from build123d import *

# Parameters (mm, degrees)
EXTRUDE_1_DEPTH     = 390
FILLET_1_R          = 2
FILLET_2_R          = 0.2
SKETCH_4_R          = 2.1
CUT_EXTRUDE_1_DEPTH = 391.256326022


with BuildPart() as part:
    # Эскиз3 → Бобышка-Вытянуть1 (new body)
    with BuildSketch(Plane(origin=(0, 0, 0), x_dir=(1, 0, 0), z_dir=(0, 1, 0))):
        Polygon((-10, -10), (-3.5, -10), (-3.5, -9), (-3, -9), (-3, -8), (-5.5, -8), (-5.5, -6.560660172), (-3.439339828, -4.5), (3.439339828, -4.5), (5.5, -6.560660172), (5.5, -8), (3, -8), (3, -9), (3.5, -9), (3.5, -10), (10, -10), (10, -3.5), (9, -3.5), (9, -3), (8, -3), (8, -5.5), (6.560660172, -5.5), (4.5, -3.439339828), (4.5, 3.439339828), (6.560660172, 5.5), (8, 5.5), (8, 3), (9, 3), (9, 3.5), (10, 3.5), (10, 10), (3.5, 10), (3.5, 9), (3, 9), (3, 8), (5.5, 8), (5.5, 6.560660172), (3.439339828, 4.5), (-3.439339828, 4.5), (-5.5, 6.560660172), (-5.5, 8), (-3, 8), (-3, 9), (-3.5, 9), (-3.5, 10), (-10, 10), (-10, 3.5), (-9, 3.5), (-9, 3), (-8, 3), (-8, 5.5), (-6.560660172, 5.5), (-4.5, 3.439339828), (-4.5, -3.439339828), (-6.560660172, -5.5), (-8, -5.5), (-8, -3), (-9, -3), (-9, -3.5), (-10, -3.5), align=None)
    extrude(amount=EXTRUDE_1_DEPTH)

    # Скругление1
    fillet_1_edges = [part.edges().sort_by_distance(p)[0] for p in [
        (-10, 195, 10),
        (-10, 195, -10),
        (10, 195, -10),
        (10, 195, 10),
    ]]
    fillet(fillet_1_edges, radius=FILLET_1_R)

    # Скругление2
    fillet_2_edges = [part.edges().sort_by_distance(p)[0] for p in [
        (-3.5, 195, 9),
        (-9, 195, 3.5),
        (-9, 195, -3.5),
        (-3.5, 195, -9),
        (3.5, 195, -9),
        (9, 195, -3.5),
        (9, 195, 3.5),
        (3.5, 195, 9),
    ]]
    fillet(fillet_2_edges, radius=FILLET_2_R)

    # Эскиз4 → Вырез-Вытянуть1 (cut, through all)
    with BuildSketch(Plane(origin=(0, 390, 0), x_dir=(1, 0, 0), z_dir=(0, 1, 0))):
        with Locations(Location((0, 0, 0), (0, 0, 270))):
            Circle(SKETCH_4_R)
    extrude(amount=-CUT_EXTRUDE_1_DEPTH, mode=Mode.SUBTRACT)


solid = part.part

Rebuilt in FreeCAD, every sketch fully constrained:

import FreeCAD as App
import Part
import Sketcher

V = App.Vector
Q = App.Units.Quantity


def edges_at(feature, points):
    """Names of the edges that pass closest to the given points."""
    edges = feature.Shape.Edges
    near = lambda p: min(range(len(edges)), key=lambda i: edges[i].distToShape(Part.Vertex(*p))[0])
    return sorted({f"Edge{near(p) + 1}" for p in points})

doc = App.newDocument("Part")
body = doc.addObject("PartDesign::Body", "Body")

sketch1 = doc.addObject("Sketcher::SketchObject", "Sketch")
body.addObject(sketch1)
sketch1.AttachmentSupport = (doc.XZ_Plane, [""])
sketch1.MapMode = "FlatFace"
sketch1.addGeometry([
    Part.LineSegment(V(-10, 10, 0), V(-3.5, 10, 0)),
    Part.LineSegment(V(-3.5, 10, 0), V(-3.5, 9, 0)),
    Part.LineSegment(V(-3.5, 9, 0), V(-3, 9, 0)),
    Part.LineSegment(V(-3, 9, 0), V(-3, 8, 0)),
    Part.LineSegment(V(-3, 8, 0), V(-5.5, 8, 0)),
    Part.LineSegment(V(-5.5, 8, 0), V(-5.5, 6.6, 0)),
    Part.LineSegment(V(-5.5, 6.6, 0), V(-3.4, 4.5, 0)),
    Part.LineSegment(V(-3.4, 4.5, 0), V(3.4, 4.5, 0)),
    Part.LineSegment(V(3.4, 4.5, 0), V(5.5, 6.6, 0)),
    Part.LineSegment(V(5.5, 6.6, 0), V(5.5, 8, 0)),
    Part.LineSegment(V(5.5, 8, 0), V(3, 8, 0)),
    Part.LineSegment(V(3, 8, 0), V(3, 9, 0)),
    Part.LineSegment(V(3, 9, 0), V(3.5, 9, 0)),
    Part.LineSegment(V(3.5, 9, 0), V(3.5, 10, 0)),
    Part.LineSegment(V(3.5, 10, 0), V(10, 10, 0)),
    Part.LineSegment(V(10, 10, 0), V(10, 3.5, 0)),
    Part.LineSegment(V(10, 3.5, 0), V(9, 3.5, 0)),
    Part.LineSegment(V(9, 3.5, 0), V(9, 3, 0)),
    Part.LineSegment(V(9, 3, 0), V(8, 3, 0)),
    Part.LineSegment(V(8, 3, 0), V(8, 5.5, 0)),
    Part.LineSegment(V(8, 5.5, 0), V(6.6, 5.5, 0)),
    Part.LineSegment(V(6.6, 5.5, 0), V(4.5, 3.4, 0)),
    Part.LineSegment(V(4.5, 3.4, 0), V(4.5, -3.4, 0)),
    Part.LineSegment(V(4.5, -3.4, 0), V(6.6, -5.5, 0)),
    Part.LineSegment(V(6.6, -5.5, 0), V(8, -5.5, 0)),
    Part.LineSegment(V(8, -5.5, 0), V(8, -3, 0)),
    Part.LineSegment(V(8, -3, 0), V(9, -3, 0)),
    Part.LineSegment(V(9, -3, 0), V(9, -3.5, 0)),
    Part.LineSegment(V(9, -3.5, 0), V(10, -3.5, 0)),
    Part.LineSegment(V(10, -3.5, 0), V(10, -10, 0)),
    Part.LineSegment(V(10, -10, 0), V(3.5, -10, 0)),
    Part.LineSegment(V(3.5, -10, 0), V(3.5, -9, 0)),
    Part.LineSegment(V(3.5, -9, 0), V(3, -9, 0)),
    Part.LineSegment(V(3, -9, 0), V(3, -8, 0)),
    Part.LineSegment(V(3, -8, 0), V(5.5, -8, 0)),
    Part.LineSegment(V(5.5, -8, 0), V(5.5, -6.6, 0)),
    Part.LineSegment(V(5.5, -6.6, 0), V(3.4, -4.5, 0)),
    Part.LineSegment(V(3.4, -4.5, 0), V(-3.4, -4.5, 0)),
    Part.LineSegment(V(-3.4, -4.5, 0), V(-5.5, -6.6, 0)),
    Part.LineSegment(V(-5.5, -6.6, 0), V(-5.5, -8, 0)),
    Part.LineSegment(V(-5.5, -8, 0), V(-3, -8, 0)),
    Part.LineSegment(V(-3, -8, 0), V(-3, -9, 0)),
    Part.LineSegment(V(-3, -9, 0), V(-3.5, -9, 0)),
    Part.LineSegment(V(-3.5, -9, 0), V(-3.5, -10, 0)),
    Part.LineSegment(V(-3.5, -10, 0), V(-10, -10, 0)),
    Part.LineSegment(V(-10, -10, 0), V(-10, -3.5, 0)),
    Part.LineSegment(V(-10, -3.5, 0), V(-9, -3.5, 0)),
    Part.LineSegment(V(-9, -3.5, 0), V(-9, -3, 0)),
    Part.LineSegment(V(-9, -3, 0), V(-8, -3, 0)),
    Part.LineSegment(V(-8, -3, 0), V(-8, -5.5, 0)),
    Part.LineSegment(V(-8, -5.5, 0), V(-6.6, -5.5, 0)),
    Part.LineSegment(V(-6.6, -5.5, 0), V(-4.5, -3.4, 0)),
    Part.LineSegment(V(-4.5, -3.4, 0), V(-4.5, 3.4, 0)),
    Part.LineSegment(V(-4.5, 3.4, 0), V(-6.6, 5.5, 0)),
    Part.LineSegment(V(-6.6, 5.5, 0), V(-8, 5.5, 0)),
    Part.LineSegment(V(-8, 5.5, 0), V(-8, 3, 0)),
    Part.LineSegment(V(-8, 3, 0), V(-9, 3, 0)),
    Part.LineSegment(V(-9, 3, 0), V(-9, 3.5, 0)),
    Part.LineSegment(V(-9, 3.5, 0), V(-10, 3.5, 0)),
    Part.LineSegment(V(-10, 3.5, 0), V(-10, 10, 0)),
], False)
sketch1.addConstraint([
    Sketcher.Constraint("Coincident", 0, 2, 1, 1),
    Sketcher.Constraint("Coincident", 1, 2, 2, 1),
    Sketcher.Constraint("Coincident", 2, 2, 3, 1),
    Sketcher.Constraint("Coincident", 3, 2, 4, 1),
    Sketcher.Constraint("Coincident", 4, 2, 5, 1),
    Sketcher.Constraint("Coincident", 5, 2, 6, 1),
    Sketcher.Constraint("Coincident", 6, 2, 7, 1),
    Sketcher.Constraint("Coincident", 7, 2, 8, 1),
    Sketcher.Constraint("Coincident", 8, 2, 9, 1),
    Sketcher.Constraint("Coincident", 9, 2, 10, 1),
    Sketcher.Constraint("Coincident", 10, 2, 11, 1),
    Sketcher.Constraint("Coincident", 11, 2, 12, 1),
    Sketcher.Constraint("Coincident", 12, 2, 13, 1),
    Sketcher.Constraint("Coincident", 13, 2, 14, 1),
    Sketcher.Constraint("Coincident", 14, 2, 15, 1),
    Sketcher.Constraint("Coincident", 15, 2, 16, 1),
    Sketcher.Constraint("Coincident", 16, 2, 17, 1),
    Sketcher.Constraint("Coincident", 17, 2, 18, 1),
    Sketcher.Constraint("Coincident", 18, 2, 19, 1),
    Sketcher.Constraint("Coincident", 19, 2, 20, 1),
    Sketcher.Constraint("Coincident", 20, 2, 21, 1),
    Sketcher.Constraint("Coincident", 21, 2, 22, 1),
    Sketcher.Constraint("Coincident", 22, 2, 23, 1),
    Sketcher.Constraint("Coincident", 23, 2, 24, 1),
    Sketcher.Constraint("Coincident", 24, 2, 25, 1),
    Sketcher.Constraint("Coincident", 25, 2, 26, 1),
    Sketcher.Constraint("Coincident", 26, 2, 27, 1),
    Sketcher.Constraint("Coincident", 27, 2, 28, 1),
    Sketcher.Constraint("Coincident", 28, 2, 29, 1),
    Sketcher.Constraint("Coincident", 29, 2, 30, 1),
    Sketcher.Constraint("Coincident", 30, 2, 31, 1),
    Sketcher.Constraint("Coincident", 31, 2, 32, 1),
    Sketcher.Constraint("Coincident", 32, 2, 33, 1),
    Sketcher.Constraint("Coincident", 33, 2, 34, 1),
    Sketcher.Constraint("Coincident", 34, 2, 35, 1),
    Sketcher.Constraint("Coincident", 35, 2, 36, 1),
    Sketcher.Constraint("Coincident", 36, 2, 37, 1),
    Sketcher.Constraint("Coincident", 37, 2, 38, 1),
    Sketcher.Constraint("Coincident", 38, 2, 39, 1),
    Sketcher.Constraint("Coincident", 39, 2, 40, 1),
    Sketcher.Constraint("Coincident", 40, 2, 41, 1),
    Sketcher.Constraint("Coincident", 41, 2, 42, 1),
    Sketcher.Constraint("Coincident", 42, 2, 43, 1),
    Sketcher.Constraint("Coincident", 43, 2, 44, 1),
    Sketcher.Constraint("Coincident", 44, 2, 45, 1),
    Sketcher.Constraint("Coincident", 45, 2, 46, 1),
    Sketcher.Constraint("Coincident", 46, 2, 47, 1),
    Sketcher.Constraint("Coincident", 47, 2, 48, 1),
    Sketcher.Constraint("Coincident", 48, 2, 49, 1),
    Sketcher.Constraint("Coincident", 49, 2, 50, 1),
    Sketcher.Constraint("Coincident", 50, 2, 51, 1),
    Sketcher.Constraint("Coincident", 51, 2, 52, 1),
    Sketcher.Constraint("Coincident", 52, 2, 53, 1),
    Sketcher.Constraint("Coincident", 53, 2, 54, 1),
    Sketcher.Constraint("Coincident", 54, 2, 55, 1),
    Sketcher.Constraint("Coincident", 55, 2, 56, 1),
    Sketcher.Constraint("Coincident", 56, 2, 57, 1),
    Sketcher.Constraint("Coincident", 57, 2, 58, 1),
    Sketcher.Constraint("Coincident", 58, 2, 59, 1),
    Sketcher.Constraint("Coincident", 59, 2, 0, 1),
    Sketcher.Constraint("Horizontal", 0),
    Sketcher.Constraint("Vertical", 1),
    Sketcher.Constraint("Horizontal", 2),
    Sketcher.Constraint("Vertical", 3),
    Sketcher.Constraint("Horizontal", 4),
    Sketcher.Constraint("Vertical", 5),
    Sketcher.Constraint("Horizontal", 7),
    Sketcher.Constraint("Vertical", 9),
    Sketcher.Constraint("Horizontal", 10),
    Sketcher.Constraint("Vertical", 11),
    Sketcher.Constraint("Horizontal", 12),
    Sketcher.Constraint("Vertical", 13),
    Sketcher.Constraint("Horizontal", 14),
    Sketcher.Constraint("Vertical", 15),
    Sketcher.Constraint("Horizontal", 16),
    Sketcher.Constraint("Vertical", 17),
    Sketcher.Constraint("Horizontal", 18),
    Sketcher.Constraint("Vertical", 19),
    Sketcher.Constraint("Horizontal", 20),
    Sketcher.Constraint("Vertical", 22),
    Sketcher.Constraint("Horizontal", 24),
    Sketcher.Constraint("Vertical", 25),
    Sketcher.Constraint("Horizontal", 26),
    Sketcher.Constraint("Vertical", 27),
    Sketcher.Constraint("Horizontal", 28),
    Sketcher.Constraint("Vertical", 29),
    Sketcher.Constraint("Horizontal", 30),
    Sketcher.Constraint("Vertical", 31),
    Sketcher.Constraint("Horizontal", 32),
    Sketcher.Constraint("Vertical", 33),
    Sketcher.Constraint("Horizontal", 34),
    Sketcher.Constraint("Vertical", 35),
    Sketcher.Constraint("Horizontal", 37),
    Sketcher.Constraint("Vertical", 39),
    Sketcher.Constraint("Horizontal", 40),
    Sketcher.Constraint("Vertical", 41),
    Sketcher.Constraint("Horizontal", 42),
    Sketcher.Constraint("Vertical", 43),
    Sketcher.Constraint("Horizontal", 44),
    Sketcher.Constraint("Vertical", 45),
    Sketcher.Constraint("Horizontal", 46),
    Sketcher.Constraint("Vertical", 47),
    Sketcher.Constraint("Horizontal", 48),
    Sketcher.Constraint("Vertical", 49),
    Sketcher.Constraint("Horizontal", 50),
    Sketcher.Constraint("Vertical", 52),
    Sketcher.Constraint("Horizontal", 54),
    Sketcher.Constraint("Vertical", 55),
    Sketcher.Constraint("Horizontal", 56),
    Sketcher.Constraint("Vertical", 57),
    Sketcher.Constraint("Horizontal", 58),
    Sketcher.Constraint("Vertical", 59),
    Sketcher.Constraint("Symmetric", 0, 2, 30, 2, -1, 1),
    Sketcher.Constraint("Symmetric", 2, 2, 32, 2, -1, 1),
    Sketcher.Constraint("Symmetric", 4, 2, 34, 2, -1, 1),
    Sketcher.Constraint("Symmetric", 6, 2, 36, 2, -1, 1),
    Sketcher.Constraint("Symmetric", 8, 2, 38, 2, -1, 1),
    Sketcher.Constraint("Symmetric", 10, 2, 40, 2, -1, 1),
    Sketcher.Constraint("Symmetric", 12, 2, 42, 2, -1, 1),
    Sketcher.Constraint("Symmetric", 14, 2, 44, 2, -1, 1),
    Sketcher.Constraint("Symmetric", 16, 2, 46, 2, -1, 1),
    Sketcher.Constraint("Symmetric", 18, 2, 48, 2, -1, 1),
    Sketcher.Constraint("Symmetric", 20, 2, 50, 2, -1, 1),
    Sketcher.Constraint("Symmetric", 21, 2, 51, 2, -1, 1),
    Sketcher.Constraint("Symmetric", 23, 2, 53, 2, -1, 1),
    Sketcher.Constraint("Symmetric", 25, 2, 55, 2, -1, 1),
    Sketcher.Constraint("Symmetric", 27, 2, 57, 2, -1, 1),
    Sketcher.Constraint("Symmetric", 5, 2, 8, 2, -2),
    Sketcher.Constraint("Symmetric", 3, 2, 10, 2, -2),
    Sketcher.Constraint("Symmetric", 1, 2, 12, 2, -2),
    Sketcher.Constraint("Symmetric", 29, 2, 44, 2, -2),
    Sketcher.Constraint("Symmetric", 27, 2, 46, 2, -2),
    Sketcher.Constraint("Symmetric", 25, 2, 48, 2, -2),
    Sketcher.Constraint("Symmetric", 23, 2, 50, 2, -2),
    Sketcher.Constraint("Perpendicular", 6, 8),
    Sketcher.Constraint("Parallel", 8, 21),
    Sketcher.Constraint("Perpendicular", 21, 23),
    Sketcher.Constraint("Parallel", 23, 36),
    Sketcher.Constraint("Perpendicular", 36, 38),
    Sketcher.Constraint("Perpendicular", 51, 53),
    Sketcher.Constraint("Horizontal", 22, 2, 51, 2),
    Sketcher.Constraint("Vertical", 45, 2, 58, 2),
    Sketcher.Constraint("Equal", 16, 18),
    Sketcher.Constraint("Equal", 58, 1),
    Sketcher.Constraint("Equal", 1, 3),
    Sketcher.Constraint("Equal", 54, 5),
    Sketcher.Constraint("Equal", 44, 15),
    Sketcher.Constraint("Equal", 42, 17),
    Sketcher.Constraint("Equal", 40, 19),
    Sketcher.Constraint("Equal", 37, 22),
    Sketcher.Constraint("Equal", 8, 21),
    Sketcher.Constraint("DistanceX", 16, 2, 16, 1, Q("1 mm")),
    Sketcher.Constraint("DistanceX", 0, 1, 0, 2, Q("6.5 mm")),
    Sketcher.Constraint("DistanceX", 2, 1, 2, 2, Q("0.5 mm")),
    Sketcher.Constraint("DistanceX", 4, 2, 4, 1, Q("2.5 mm")),
    Sketcher.Constraint("DistanceY", -1, 1, 0, 2, Q("10 mm")),
    Sketcher.Constraint("DistanceY", 15, 2, 7, 2, Q("1 mm")),
    Sketcher.Constraint("DistanceX", 7, 1, 7, 2, Q("6.87868 mm")),
])
pad1 = doc.addObject("PartDesign::Pad", "Pad")
body.addObject(pad1)
pad1.Profile = sketch1
pad1.Length = 390
pad1.Reversed = True
doc.recompute()

fillet = doc.addObject("PartDesign::Fillet", "Fillet")
body.addObject(fillet)
fillet.Base = (pad1, edges_at(pad1, [
    (-10, 195, 10),
    (-10, 195, -10),
    (10, 195, -10),
    (10, 195, 10),
]))
fillet.Radius = 2
doc.recompute()

fillet2 = doc.addObject("PartDesign::Fillet", "Fillet001")
body.addObject(fillet2)
fillet2.Base = (fillet, edges_at(fillet, [
    (-3.5, 195, 9),
    (-9, 195, 3.5),
    (-9, 195, -3.5),
    (-3.5, 195, -9),
    (3.5, 195, -9),
    (9, 195, -3.5),
    (9, 195, 3.5),
    (3.5, 195, 9),
]))
fillet2.Radius = 0.2

sketch2 = doc.addObject("Sketcher::SketchObject", "Sketch001")
body.addObject(sketch2)
sketch2.AttachmentSupport = (doc.XZ_Plane, [""])
sketch2.MapMode = "FlatFace"
sketch2.AttachmentOffset = App.Placement(V(0, 0, -390), App.Rotation())
sketch2.addGeometry(Part.Circle(V(0, 0, 0), V(0, 0, 1), 2.1), False)
sketch2.addConstraint([
    Sketcher.Constraint("Coincident", 0, 3, -1, 1),
    Sketcher.Constraint("Diameter", 0, Q("4.2 mm")),
])
pocket1 = doc.addObject("PartDesign::Pocket", "Pocket")
body.addObject(pocket1)
pocket1.Profile = sketch2
pocket1.Type = "ThroughAll"
pocket1.Reversed = True

doc.recompute()
